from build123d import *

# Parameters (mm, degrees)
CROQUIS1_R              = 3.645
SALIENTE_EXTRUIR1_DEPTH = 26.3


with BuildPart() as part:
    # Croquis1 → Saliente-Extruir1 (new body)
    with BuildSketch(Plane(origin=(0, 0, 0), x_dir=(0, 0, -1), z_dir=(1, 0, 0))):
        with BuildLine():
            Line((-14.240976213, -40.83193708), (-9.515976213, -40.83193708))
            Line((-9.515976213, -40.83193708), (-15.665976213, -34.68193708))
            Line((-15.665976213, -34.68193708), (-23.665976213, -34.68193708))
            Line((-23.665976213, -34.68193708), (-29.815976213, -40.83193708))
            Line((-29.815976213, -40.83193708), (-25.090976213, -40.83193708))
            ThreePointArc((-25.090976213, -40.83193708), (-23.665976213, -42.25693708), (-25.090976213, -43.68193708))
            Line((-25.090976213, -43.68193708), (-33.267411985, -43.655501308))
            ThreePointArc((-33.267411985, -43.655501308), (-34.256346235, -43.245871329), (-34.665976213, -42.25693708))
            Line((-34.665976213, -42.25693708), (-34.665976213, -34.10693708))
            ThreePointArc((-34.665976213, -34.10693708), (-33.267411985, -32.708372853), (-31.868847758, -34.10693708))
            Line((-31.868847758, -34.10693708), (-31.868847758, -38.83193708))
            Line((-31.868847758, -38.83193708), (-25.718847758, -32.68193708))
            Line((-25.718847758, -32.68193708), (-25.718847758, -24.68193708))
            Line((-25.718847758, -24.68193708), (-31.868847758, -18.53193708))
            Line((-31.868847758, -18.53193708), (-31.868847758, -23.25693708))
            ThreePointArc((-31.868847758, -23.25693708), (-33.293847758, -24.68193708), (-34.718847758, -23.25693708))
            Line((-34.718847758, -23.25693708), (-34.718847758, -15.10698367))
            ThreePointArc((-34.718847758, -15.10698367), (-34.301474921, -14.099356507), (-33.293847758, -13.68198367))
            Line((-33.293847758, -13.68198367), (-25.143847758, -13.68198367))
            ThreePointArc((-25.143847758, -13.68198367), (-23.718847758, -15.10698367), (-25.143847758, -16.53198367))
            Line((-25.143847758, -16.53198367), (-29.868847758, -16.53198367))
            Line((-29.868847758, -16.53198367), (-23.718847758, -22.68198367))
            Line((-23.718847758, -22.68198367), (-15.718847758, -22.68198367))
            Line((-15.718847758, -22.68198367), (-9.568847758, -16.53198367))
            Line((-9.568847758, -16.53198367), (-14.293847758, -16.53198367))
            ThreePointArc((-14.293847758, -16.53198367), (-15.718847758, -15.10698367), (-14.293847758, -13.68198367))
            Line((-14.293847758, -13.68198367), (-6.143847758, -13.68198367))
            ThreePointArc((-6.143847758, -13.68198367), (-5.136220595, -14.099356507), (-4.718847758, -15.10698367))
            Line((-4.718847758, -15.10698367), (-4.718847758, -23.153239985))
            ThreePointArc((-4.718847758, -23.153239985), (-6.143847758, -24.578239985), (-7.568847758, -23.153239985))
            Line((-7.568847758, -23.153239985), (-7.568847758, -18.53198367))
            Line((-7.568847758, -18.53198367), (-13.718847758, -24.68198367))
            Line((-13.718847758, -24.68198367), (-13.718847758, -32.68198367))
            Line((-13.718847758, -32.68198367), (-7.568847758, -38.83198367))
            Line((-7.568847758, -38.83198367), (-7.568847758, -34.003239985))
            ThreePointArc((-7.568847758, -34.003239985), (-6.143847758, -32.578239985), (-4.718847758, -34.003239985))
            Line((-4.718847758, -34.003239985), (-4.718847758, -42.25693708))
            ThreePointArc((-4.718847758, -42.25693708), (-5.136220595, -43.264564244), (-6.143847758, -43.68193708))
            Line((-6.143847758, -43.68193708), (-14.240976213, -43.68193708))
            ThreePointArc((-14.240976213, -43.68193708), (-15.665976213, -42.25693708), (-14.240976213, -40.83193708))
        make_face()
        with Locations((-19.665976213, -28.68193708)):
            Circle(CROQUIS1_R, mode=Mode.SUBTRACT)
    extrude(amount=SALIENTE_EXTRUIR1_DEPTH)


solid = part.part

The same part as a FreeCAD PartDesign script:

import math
import FreeCAD as App
import Part
import Sketcher

V = App.Vector

doc = App.newDocument("Part")
body = doc.addObject("PartDesign::Body", "Body")

# Sketch on YZ plane
sketch1 = body.newObject("Sketcher::SketchObject", "Sketch")
sketch1.AttachmentSupport = (doc.getObject("YZ_Plane"), [""])
sketch1.MapMode = "FlatFace"
sketch1.addGeometry([
    Part.LineSegment(V(-40.831937, 9.515976, 0), V(-40.831937, 14.240976, 0)),  # 0
    Part.ArcOfCircle(Part.Circle(V(-42.256937, 14.240976, 0), V(0, 0, 1), 1.425), math.radians(0), math.radians(180)),  # 1
    Part.LineSegment(V(-43.681937, 14.240976, 0), V(-43.681937, 6.143848, 0)),  # 2
    Part.ArcOfCircle(Part.Circle(V(-42.256937, 6.143848, 0), V(0, 0, 1), 1.425), math.radians(180), math.radians(270)),  # 3
    Part.LineSegment(V(-42.256937, 4.718848, 0), V(-34.00324, 4.718848, 0)),  # 4
    Part.ArcOfCircle(Part.Circle(V(-34.00324, 6.143848, 0), V(0, 0, 1), 1.425), math.radians(-90), math.radians(90)),  # 5
    Part.LineSegment(V(-34.00324, 7.568848, 0), V(-38.831984, 7.568848, 0)),  # 6
    Part.LineSegment(V(-38.831984, 7.568848, 0), V(-32.681984, 13.718848, 0)),  # 7
    Part.LineSegment(V(-32.681984, 13.718848, 0), V(-24.681984, 13.718848, 0)),  # 8
    Part.LineSegment(V(-24.681984, 13.718848, 0), V(-18.531984, 7.568848, 0)),  # 9
    Part.LineSegment(V(-18.531984, 7.568848, 0), V(-23.15324, 7.568848, 0)),  # 10
    Part.ArcOfCircle(Part.Circle(V(-23.15324, 6.143848, 0), V(0, 0, 1), 1.425), math.radians(90), math.radians(270)),  # 11
    Part.LineSegment(V(-23.15324, 4.718848, 0), V(-15.106984, 4.718848, 0)),  # 12
    Part.ArcOfCircle(Part.Circle(V(-15.106984, 6.143848, 0), V(0, 0, 1), 1.425), math.radians(-90), math.radians(0)),  # 13
    Part.LineSegment(V(-13.681984, 6.143848, 0), V(-13.681984, 14.293848, 0)),  # 14
    Part.ArcOfCircle(Part.Circle(V(-15.106984, 14.293848, 0), V(0, 0, 1), 1.425), math.radians(0), math.radians(180)),  # 15
    Part.LineSegment(V(-16.531984, 14.293848, 0), V(-16.531984, 9.568848, 0)),  # 16
    Part.LineSegment(V(-16.531984, 9.568848, 0), V(-22.681984, 15.718848, 0)),  # 17
    Part.LineSegment(V(-22.681984, 15.718848, 0), V(-22.681984, 23.718848, 0)),  # 18
    Part.LineSegment(V(-22.681984, 23.718848, 0), V(-16.531984, 29.868848, 0)),  # 19
    Part.LineSegment(V(-16.531984, 29.868848, 0), V(-16.531984, 25.143848, 0)),  # 20
    Part.ArcOfCircle(Part.Circle(V(-15.106984, 25.143848, 0), V(0, 0, 1), 1.425), math.radians(180), math.radians(360)),  # 21
    Part.LineSegment(V(-13.681984, 25.143848, 0), V(-13.681984, 33.293848, 0)),  # 22
    Part.ArcOfCircle(Part.Circle(V(-15.106984, 33.293848, 0), V(0, 0, 1), 1.425), math.radians(0), math.radians(90)),  # 23
    Part.LineSegment(V(-15.106984, 34.718848, 0), V(-23.256937, 34.718848, 0)),  # 24
    Part.ArcOfCircle(Part.Circle(V(-23.256937, 33.293848, 0), V(0, 0, 1), 1.425), math.radians(90), math.radians(270)),  # 25
    Part.LineSegment(V(-23.256937, 31.868848, 0), V(-18.531937, 31.868848, 0)),  # 26
    Part.LineSegment(V(-18.531937, 31.868848, 0), V(-24.681937, 25.718848, 0)),  # 27
    Part.LineSegment(V(-24.681937, 25.718848, 0), V(-32.681937, 25.718848, 0)),  # 28
    Part.LineSegment(V(-32.681937, 25.718848, 0), V(-38.831937, 31.868848, 0)),  # 29
    Part.LineSegment(V(-38.831937, 31.868848, 0), V(-34.106937, 31.868848, 0)),  # 30
    Part.ArcOfCircle(Part.Circle(V(-34.106937, 33.267412, 0), V(0, 0, 1), 1.398564), math.radians(-90), math.radians(90)),  # 31
    Part.LineSegment(V(-34.106937, 34.665976, 0), V(-42.256937, 34.665976, 0)),  # 32
    Part.ArcOfCircle(Part.Circle(V(-42.256937, 33.267412, 0), V(0, 0, 1), 1.398564), math.radians(90), math.radians(180)),  # 33
    Part.LineSegment(V(-43.655501, 33.267412, 0), V(-43.681937, 25.090976, 0)),  # 34
    Part.ArcOfCircle(Part.Circle(V(-42.256937, 25.090976, 0), V(0, 0, 1), 1.425), math.radians(180), math.radians(360)),  # 35
    Part.LineSegment(V(-40.831937, 25.090976, 0), V(-40.831937, 29.815976, 0)),  # 36
    Part.LineSegment(V(-40.831937, 29.815976, 0), V(-34.681937, 23.665976, 0)),  # 37
    Part.LineSegment(V(-34.681937, 23.665976, 0), V(-34.681937, 15.665976, 0)),  # 38
    Part.LineSegment(V(-34.681937, 15.665976, 0), V(-40.831937, 9.515976, 0)),  # 39
    Part.Circle(V(-28.681937, 19.665976, 0), V(0, 0, 1), 3.645),  # 40
], False)
sketch1.addConstraint([
    Sketcher.Constraint("Tangent", 0, 2, 1, 1),
    Sketcher.Constraint("Tangent", 1, 2, 2, 1),
    Sketcher.Constraint("Tangent", 2, 2, 3, 1),
    Sketcher.Constraint("Tangent", 3, 2, 4, 1),
    Sketcher.Constraint("Tangent", 4, 2, 5, 1),
    Sketcher.Constraint("Tangent", 5, 2, 6, 1),
    Sketcher.Constraint("Coincident", 6, 2, 7, 1),
    Sketcher.Constraint("Coincident", 7, 2, 8, 1),
    Sketcher.Constraint("Coincident", 8, 2, 9, 1),
    Sketcher.Constraint("Coincident", 9, 2, 10, 1),
    Sketcher.Constraint("Tangent", 10, 2, 11, 1),
    Sketcher.Constraint("Tangent", 11, 2, 12, 1),
    Sketcher.Constraint("Tangent", 12, 2, 13, 1),
    Sketcher.Constraint("Tangent", 13, 2, 14, 1),
    Sketcher.Constraint("Tangent", 14, 2, 15, 1),
    Sketcher.Constraint("Tangent", 15, 2, 16, 1),
    Sketcher.Constraint("Coincident", 16, 2, 17, 1),
    Sketcher.Constraint("Coincident", 17, 2, 18, 1),
    Sketcher.Constraint("Coincident", 18, 2, 19, 1),
    Sketcher.Constraint("Coincident", 19, 2, 20, 1),
    Sketcher.Constraint("Tangent", 20, 2, 21, 1),
    Sketcher.Constraint("Tangent", 21, 2, 22, 1),
    Sketcher.Constraint("Tangent", 22, 2, 23, 1),
    Sketcher.Constraint("Tangent", 23, 2, 24, 1),
    Sketcher.Constraint("Tangent", 24, 2, 25, 1),
    Sketcher.Constraint("Tangent", 25, 2, 26, 1),
    Sketcher.Constraint("Coincident", 26, 2, 27, 1),
    Sketcher.Constraint("Coincident", 27, 2, 28, 1),
    Sketcher.Constraint("Coincident", 28, 2, 29, 1),
    Sketcher.Constraint("Coincident", 29, 2, 30, 1),
    Sketcher.Constraint("Tangent", 30, 2, 31, 1),
    Sketcher.Constraint("Tangent", 31, 2, 32, 1),
    Sketcher.Constraint("Tangent", 32, 2, 33, 1),
    Sketcher.Constraint("Coincident", 33, 2, 34, 1),
    Sketcher.Constraint("Coincident", 34, 2, 35, 1),
    Sketcher.Constraint("Tangent", 35, 2, 36, 1),
    Sketcher.Constraint("Coincident", 36, 2, 37, 1),
    Sketcher.Constraint("Coincident", 37, 2, 38, 1),
    Sketcher.Constraint("Coincident", 38, 2, 39, 1),
    Sketcher.Constraint("Coincident", 39, 2, 0, 1),
    Sketcher.Constraint("Vertical", 0),
    Sketcher.Constraint("Vertical", 2),
    Sketcher.Constraint("Horizontal", 4),
    Sketcher.Constraint("Horizontal", 6),
    Sketcher.Constraint("Horizontal", 8),
    Sketcher.Constraint("Horizontal", 10),
    Sketcher.Constraint("Horizontal", 12),
    Sketcher.Constraint("Vertical", 14),
    Sketcher.Constraint("Vertical", 16),
    Sketcher.Constraint("Vertical", 18),
    Sketcher.Constraint("Vertical", 20),
    Sketcher.Constraint("Vertical", 22),
    Sketcher.Constraint("Horizontal", 24),
    Sketcher.Constraint("Horizontal", 26),
    Sketcher.Constraint("Horizontal", 28),
    Sketcher.Constraint("Horizontal", 30),
    Sketcher.Constraint("Horizontal", 32),
    Sketcher.Constraint("Vertical", 36),
    Sketcher.Constraint("Vertical", 38),
    Sketcher.Constraint("Equal", 1, 3),
    Sketcher.Constraint("Equal", 3, 5),
    Sketcher.Constraint("Equal", 5, 11),
    Sketcher.Constraint("Equal", 11, 13),
    Sketcher.Constraint("Equal", 13, 15),
    Sketcher.Constraint("Equal", 15, 21),
    Sketcher.Constraint("Equal", 21, 23),
    Sketcher.Constraint("Equal", 23, 25),
    Sketcher.Constraint("Equal", 31, 33),
    Sketcher.Constraint("Equal", 25, 35),
    Sketcher.Constraint("Perpendicular", 7, 9),
    Sketcher.Constraint("Parallel", 9, 17),
    Sketcher.Constraint("Perpendicular", 17, 19),
    Sketcher.Constraint("Parallel", 19, 27),
    Sketcher.Constraint("Perpendicular", 27, 29),
    Sketcher.Constraint("Parallel", 29, 37),
    Sketcher.Constraint("Perpendicular", 37, 39),
    Sketcher.Constraint("Horizontal", 5, 3, 11, 3),
    Sketcher.Constraint("Horizontal", 26, 2, 29, 2),
    Sketcher.Constraint("Horizontal", 31, 3, 33, 2),
    Sketcher.Constraint("Horizontal", 35, 3, 34, 2),
    Sketcher.Constraint("Vertical", 15, 3, 21, 3),
    Sketcher.Constraint("Vertical", 3, 3, 33, 3),
    Sketcher.Constraint("Vertical", 33, 3, 35, 3),
    Sketcher.Constraint("Equal", 8, 28),
    Sketcher.Constraint("Equal", 26, 30),
    Sketcher.Constraint("Equal", 30, 0),
    Sketcher.Constraint("Equal", 32, 14),
    Sketcher.Constraint("Equal", 0, 16),
    Sketcher.Constraint("Equal", 28, 18),
    Sketcher.Constraint("Equal", 16, 20),
    Sketcher.Constraint("Equal", 14, 22),
    Sketcher.Constraint("Equal", 20, 36),
    Sketcher.Constraint("Equal", 18, 38),
    Sketcher.Constraint("Equal", 7, 9),
    Sketcher.Constraint("Equal", 9, 17),
    Sketcher.Constraint("Equal", 19, 27),
    Sketcher.Constraint("Equal", 29, 37),
    Sketcher.Constraint("Diameter", 40, 7.29),
    Sketcher.Constraint("DistanceX", 8, 1, 8, 2, 8.0),
    Sketcher.Constraint("Radius", 1, 1.425),
    Sketcher.Constraint("DistanceY", 13, 3, 21, 3, 19.0),
    Sketcher.Constraint("DistanceY", 11, 2, 8, 2, 9.0),
    Sketcher.Constraint("DistanceX", 9, 2, 15, 2, 2.0),
    Sketcher.Constraint("DistanceY", 9, 2, 16, 2, 2.0),
    Sketcher.Constraint("DistanceX", 40, 3, 27, 2, 4.0),
    Sketcher.Constraint("DistanceY", 40, 3, 37, 2, 4.0),
    Sketcher.Constraint("DistanceX", 5, 3, 11, 3, 10.85),
    Sketcher.Constraint("Radius", 31, 1.398564),
    Sketcher.Constraint("DistanceY", 34, 2, 32, 2, 9.575),
    Sketcher.Constraint("DistanceX", 33, 2, -1, 1, 43.655501),
    Sketcher.Constraint("DistanceX", 4, 1, 4, 2, 8.253697),
    Sketcher.Constraint("DistanceX", 6, 2, 6, 1, 4.828744),
    Sketcher.Constraint("DistanceY", -1, 1, 31, 3, 33.267412),
])
pad1 = body.newObject("PartDesign::Pad", "Pad")
pad1.Profile = sketch1
pad1.Length = 26.3

doc.recompute()
